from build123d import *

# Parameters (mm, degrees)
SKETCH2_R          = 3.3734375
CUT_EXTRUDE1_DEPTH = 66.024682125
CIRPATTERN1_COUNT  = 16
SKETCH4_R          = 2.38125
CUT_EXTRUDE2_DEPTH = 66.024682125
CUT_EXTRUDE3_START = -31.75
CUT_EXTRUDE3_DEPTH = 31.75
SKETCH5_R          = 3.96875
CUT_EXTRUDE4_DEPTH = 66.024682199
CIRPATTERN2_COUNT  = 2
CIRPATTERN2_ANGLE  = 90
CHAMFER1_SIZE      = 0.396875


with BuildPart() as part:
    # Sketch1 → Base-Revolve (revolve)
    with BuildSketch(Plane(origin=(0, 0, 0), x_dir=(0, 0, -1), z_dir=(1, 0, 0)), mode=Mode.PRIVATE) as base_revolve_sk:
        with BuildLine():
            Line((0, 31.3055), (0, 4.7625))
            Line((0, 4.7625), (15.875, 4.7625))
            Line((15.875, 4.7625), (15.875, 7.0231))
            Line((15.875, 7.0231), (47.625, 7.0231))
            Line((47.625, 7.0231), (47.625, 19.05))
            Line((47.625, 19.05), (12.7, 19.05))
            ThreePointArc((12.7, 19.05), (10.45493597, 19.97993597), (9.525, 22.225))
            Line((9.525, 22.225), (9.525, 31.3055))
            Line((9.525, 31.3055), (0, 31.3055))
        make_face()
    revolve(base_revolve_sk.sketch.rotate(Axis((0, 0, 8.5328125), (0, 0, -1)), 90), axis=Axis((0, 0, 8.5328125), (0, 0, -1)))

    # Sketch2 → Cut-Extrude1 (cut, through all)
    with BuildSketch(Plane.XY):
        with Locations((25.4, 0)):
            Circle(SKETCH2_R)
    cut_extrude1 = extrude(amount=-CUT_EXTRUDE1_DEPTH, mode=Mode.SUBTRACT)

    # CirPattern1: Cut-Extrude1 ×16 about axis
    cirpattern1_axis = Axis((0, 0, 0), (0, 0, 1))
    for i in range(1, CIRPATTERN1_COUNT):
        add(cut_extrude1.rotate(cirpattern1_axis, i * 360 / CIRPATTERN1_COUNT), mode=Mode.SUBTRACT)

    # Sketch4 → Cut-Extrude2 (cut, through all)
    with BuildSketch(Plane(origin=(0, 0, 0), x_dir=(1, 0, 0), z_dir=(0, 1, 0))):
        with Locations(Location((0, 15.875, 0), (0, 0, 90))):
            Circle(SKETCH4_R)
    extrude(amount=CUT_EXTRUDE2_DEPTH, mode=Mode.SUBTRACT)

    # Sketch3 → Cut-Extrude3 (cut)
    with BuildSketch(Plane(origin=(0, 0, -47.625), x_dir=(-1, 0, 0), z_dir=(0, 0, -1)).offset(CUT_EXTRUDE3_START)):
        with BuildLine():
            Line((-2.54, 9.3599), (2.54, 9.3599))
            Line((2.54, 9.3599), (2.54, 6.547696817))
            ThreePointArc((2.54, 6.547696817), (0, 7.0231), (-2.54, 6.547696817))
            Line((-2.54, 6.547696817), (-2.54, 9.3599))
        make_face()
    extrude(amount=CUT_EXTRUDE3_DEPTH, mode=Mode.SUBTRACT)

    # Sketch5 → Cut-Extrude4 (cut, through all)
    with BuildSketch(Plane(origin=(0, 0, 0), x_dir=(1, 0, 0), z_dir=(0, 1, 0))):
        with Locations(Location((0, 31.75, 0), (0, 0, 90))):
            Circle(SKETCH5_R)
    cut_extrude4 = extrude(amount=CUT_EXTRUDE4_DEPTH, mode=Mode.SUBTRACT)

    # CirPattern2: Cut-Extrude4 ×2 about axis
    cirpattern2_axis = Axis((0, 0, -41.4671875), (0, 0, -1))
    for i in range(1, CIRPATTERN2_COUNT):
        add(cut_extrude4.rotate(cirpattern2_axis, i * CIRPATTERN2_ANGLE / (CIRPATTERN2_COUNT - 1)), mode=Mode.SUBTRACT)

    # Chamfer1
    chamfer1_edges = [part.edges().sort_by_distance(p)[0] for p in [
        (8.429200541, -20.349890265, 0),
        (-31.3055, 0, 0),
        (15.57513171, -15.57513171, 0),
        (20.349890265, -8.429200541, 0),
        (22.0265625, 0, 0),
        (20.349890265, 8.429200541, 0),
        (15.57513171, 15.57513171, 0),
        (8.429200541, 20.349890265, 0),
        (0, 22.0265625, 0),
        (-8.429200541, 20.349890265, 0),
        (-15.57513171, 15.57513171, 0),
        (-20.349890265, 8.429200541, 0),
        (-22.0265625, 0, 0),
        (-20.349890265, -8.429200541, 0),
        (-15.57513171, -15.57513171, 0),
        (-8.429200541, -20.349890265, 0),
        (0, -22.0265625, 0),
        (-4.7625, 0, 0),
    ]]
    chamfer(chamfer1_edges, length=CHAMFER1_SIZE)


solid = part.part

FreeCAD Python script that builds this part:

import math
import FreeCAD as App
import Part
import Sketcher
Q = App.Units.Quantity


def edges_at(feature, points):
    """Names of the edges that pass closest to the given points."""
    edges = feature.Shape.Edges
    near = lambda p: min(range(len(edges)), key=lambda i: edges[i].distToShape(Part.Vertex(*p))[0])
    return sorted({f"Edge{near(p) + 1}" for p in points})

doc = App.newDocument("Part")
params = doc.addObject("Spreadsheet::Sheet", "Params")
for row, (alias, value) in enumerate([
    ("sketch1_radius", "0.125 in"),
    ("sketch1_height", "1.25 in"),
    ("sketch1_width", "1.045 in"),
    ("sketch1_width2", "0.089 in"),
    ("sketch1_height2", "0.625 in"),
    ("revolution_angle", "360 deg"),
    ("sketch2_diameter", "0.265625 in"),
    ("sketch3_diameter", "0.1875 in"),
    ("sketch4_width", "0.2 in"),
    ("pocket3_length", "1.25 in"),
    ("sketch5_diameter", "0.3125 in"),
    ("chamfer_size", "0.015625 in"),
], start=1):
    params.set(f"A{row}", alias)
    params.set(f"B{row}", "=" + value)
    params.setAlias(f"B{row}", alias)

body = doc.addObject("PartDesign::Body", "Body")

sketch1 = doc.addObject("Sketcher::SketchObject", "Sketch")
body.addObject(sketch1)
sketch1.AttachmentSupport = (doc.YZ_Plane, [""])
sketch1.MapMode = "FlatFace"
sketch1.addGeometry(Part.LineSegment(App.Vector(31.3, 0, 0), App.Vector(4.8, 0, 0)), False)
sketch1.addGeometry(Part.LineSegment(App.Vector(4.8, 0, 0), App.Vector(4.8, -15.9, 0)), False)
sketch1.addGeometry(Part.LineSegment(App.Vector(4.8, -15.9, 0), App.Vector(7, -15.9, 0)), False)
sketch1.addGeometry(Part.LineSegment(App.Vector(7, -15.9, 0), App.Vector(7, -47.6, 0)), False)
sketch1.addGeometry(Part.LineSegment(App.Vector(7, -47.6, 0), App.Vector(19.1, -47.6, 0)), False)
sketch1.addGeometry(Part.LineSegment(App.Vector(19.1, -47.6, 0), App.Vector(19.1, -12.7, 0)), False)
sketch1.addGeometry(Part.ArcOfCircle(Part.Circle(App.Vector(22.2, -12.7, 0), App.Vector(0, 0, 1), 3.2), math.radians(90), math.radians(180)), False)
sketch1.addGeometry(Part.LineSegment(App.Vector(22.2, -9.5, 0), App.Vector(31.3, -9.5, 0)), False)
sketch1.addGeometry(Part.LineSegment(App.Vector(31.3, -9.5, 0), App.Vector(31.3, 0, 0)), False)
sketch1.addConstraint(Sketcher.Constraint("Coincident", 0, 2, 1, 1))
sketch1.addConstraint(Sketcher.Constraint("Coincident", 1, 2, 2, 1))
sketch1.addConstraint(Sketcher.Constraint("Coincident", 2, 2, 3, 1))
sketch1.addConstraint(Sketcher.Constraint("Coincident", 3, 2, 4, 1))
sketch1.addConstraint(Sketcher.Constraint("Coincident", 4, 2, 5, 1))
sketch1.addConstraint(Sketcher.Constraint("Tangent", 5, 2, 6, 2))
sketch1.addConstraint(Sketcher.Constraint("Tangent", 6, 1, 7, 1))
sketch1.addConstraint(Sketcher.Constraint("Coincident", 7, 2, 8, 1))
sketch1.addConstraint(Sketcher.Constraint("Coincident", 8, 2, 0, 1))
sketch1.addConstraint(Sketcher.Constraint("Horizontal", 0))
sketch1.addConstraint(Sketcher.Constraint("Vertical", 1))
sketch1.addConstraint(Sketcher.Constraint("Horizontal", 2))
sketch1.addConstraint(Sketcher.Constraint("Vertical", 3))
sketch1.addConstraint(Sketcher.Constraint("Horizontal", 4))
sketch1.addConstraint(Sketcher.Constraint("Vertical", 5))
sketch1.addConstraint(Sketcher.Constraint("Horizontal", 7))
sketch1.addConstraint(Sketcher.Constraint("Vertical", 8))
sketch1.addConstraint(Sketcher.Constraint("PointOnObject", 0, 2, -1))
sketch1.addConstraint(Sketcher.Constraint("Radius", 6, Q("0.125 in")))
sketch1.addConstraint(Sketcher.Constraint("DistanceY", 3, 2, 3, 1, Q("1.25 in")))
sketch1.addConstraint(Sketcher.Constraint("DistanceY", 6, 3, -1, 1, Q("0.5 in")))
sketch1.addConstraint(Sketcher.Constraint("DistanceX", 0, 2, 0, 1, Q("1.045 in")))
sketch1.addConstraint(Sketcher.Constraint("DistanceX", 2, 1, 2, 2, Q("0.089 in")))
sketch1.addConstraint(Sketcher.Constraint("DistanceY", 1, 2, 1, 1, Q("0.625 in")))
sketch1.addConstraint(Sketcher.Constraint("DistanceX", -1, 1, 4, 2, Q("0.75 in")))
sketch1.addConstraint(Sketcher.Constraint("DistanceX", 4, 1, 4, 2, Q("0.4735 in")))
sketch1.setExpression("Constraints[18]", "Params.sketch1_radius")
sketch1.setExpression("Constraints[19]", "Params.sketch1_height")
sketch1.setExpression("Constraints[21]", "Params.sketch1_width")
sketch1.setExpression("Constraints[22]", "Params.sketch1_width2")
sketch1.setExpression("Constraints[23]", "Params.sketch1_height2")
revolution = doc.addObject("PartDesign::Revolution", "Revolution")
body.addObject(revolution)
revolution.Profile = sketch1
revolution.ReferenceAxis = (sketch1, ["V_Axis"])
revolution.setExpression("Angle", "Params.revolution_angle")

sketch2 = doc.addObject("Sketcher::SketchObject", "Sketch001")
body.addObject(sketch2)
sketch2.AttachmentSupport = (doc.XY_Plane, [""])
sketch2.MapMode = "FlatFace"
sketch2.addGeometry(Part.Circle(App.Vector(25.4, 0, 0), App.Vector(0, 0, 1), 3.4), False)
sketch2.addConstraint(Sketcher.Constraint("PointOnObject", 0, 3, -1))
sketch2.addConstraint(Sketcher.Constraint("Diameter", 0, Q("0.265625 in")))
sketch2.addConstraint(Sketcher.Constraint("DistanceX", -1, 1, 0, 3, Q("1 in")))
sketch2.setExpression("Constraints[1]", "Params.sketch2_diameter")
pocket1 = doc.addObject("PartDesign::Pocket", "Pocket")
body.addObject(pocket1)
pocket1.Profile = sketch2
pocket1.Type = "ThroughAll"
doc.recompute()

polarpattern = doc.addObject("PartDesign::PolarPattern", "PolarPattern")
body.addObject(polarpattern)
polarpattern.Originals = [pocket1]
polarpattern.Axis = (doc.Z_Axis, [""])
polarpattern.Angle = 360
polarpattern.Occurrences = 16
body.Tip = polarpattern

sketch3 = doc.addObject("Sketcher::SketchObject", "Sketch002")
body.addObject(sketch3)
sketch3.AttachmentSupport = (doc.XZ_Plane, [""])
sketch3.MapMode = "FlatFace"
sketch3.addGeometry(Part.Circle(App.Vector(0, -15.9, 0), App.Vector(0, 0, 1), 2.4), False)
sketch3.addConstraint(Sketcher.Constraint("PointOnObject", 0, 3, -2))
sketch3.addConstraint(Sketcher.Constraint("Diameter", 0, Q("0.1875 in")))
sketch3.addConstraint(Sketcher.Constraint("DistanceY", 0, 3, -1, 1, Q("0.625 in")))
sketch3.setExpression("Constraints[1]", "Params.sketch3_diameter")
pocket2 = doc.addObject("PartDesign::Pocket", "Pocket001")
body.addObject(pocket2)
pocket2.Profile = sketch3
pocket2.Type = "ThroughAll"

sketch4 = doc.addObject("Sketcher::SketchObject", "Sketch003")
body.addObject(sketch4)
sketch4.AttachmentSupport = (doc.XY_Plane, [""])
sketch4.MapMode = "FlatFace"
sketch4.AttachmentOffset = App.Placement(App.Vector(0, 0, -0.625 * 25.4), App.Rotation())
sketch4.addGeometry(Part.LineSegment(App.Vector(-2.5, 9.4, 0), App.Vector(2.5, 9.4, 0)), False)
sketch4.addGeometry(Part.LineSegment(App.Vector(2.5, 9.4, 0), App.Vector(2.5, 6.5, 0)), False)
sketch4.addGeometry(Part.ArcOfCircle(Part.Circle(App.Vector(0, 0, 0), App.Vector(0, 0, 1), 7), math.radians(69), math.radians(111)), False)
sketch4.addGeometry(Part.LineSegment(App.Vector(-2.5, 6.5, 0), App.Vector(-2.5, 9.4, 0)), False)
sketch4.addConstraint(Sketcher.Constraint("Coincident", 0, 2, 1, 1))
sketch4.addConstraint(Sketcher.Constraint("Coincident", 1, 2, 2, 1))
sketch4.addConstraint(Sketcher.Constraint("Coincident", 2, 2, 3, 1))
sketch4.addConstraint(Sketcher.Constraint("Coincident", 3, 2, 0, 1))
sketch4.addConstraint(Sketcher.Constraint("Horizontal", 0))
sketch4.addConstraint(Sketcher.Constraint("Vertical", 1))
sketch4.addConstraint(Sketcher.Constraint("Vertical", 3))
sketch4.addConstraint(Sketcher.Constraint("Coincident", 2, 3, -1, 1))
sketch4.addConstraint(Sketcher.Constraint("Horizontal", 1, 2, 2, 2))
sketch4.addConstraint(Sketcher.Constraint("DistanceX", 0, 1, 0, 2, Q("0.2 in")))
sketch4.addConstraint(Sketcher.Constraint("Radius", 2, Q("0.2765 in")))
sketch4.addConstraint(Sketcher.Constraint("DistanceY", -1, 1, 0, 2, Q("0.3685 in")))
sketch4.setExpression("Constraints[9]", "Params.sketch4_width")
pocket3 = doc.addObject("PartDesign::Pocket", "Pocket002")
body.addObject(pocket3)
pocket3.Profile = sketch4
pocket3.setExpression("Length", "Params.pocket3_length")

sketch5 = doc.addObject("Sketcher::SketchObject", "Sketch004")
body.addObject(sketch5)
sketch5.AttachmentSupport = (doc.XZ_Plane, [""])
sketch5.MapMode = "FlatFace"
sketch5.addGeometry(Part.Circle(App.Vector(0, -31.8, 0), App.Vector(0, 0, 1), 4), False)
sketch5.addConstraint(Sketcher.Constraint("PointOnObject", 0, 3, -2))
sketch5.addConstraint(Sketcher.Constraint("Diameter", 0, Q("0.3125 in")))
sketch5.addConstraint(Sketcher.Constraint("DistanceY", 0, 3, -1, 1, Q("1.25 in")))
sketch5.setExpression("Constraints[1]", "Params.sketch5_diameter")
pocket4 = doc.addObject("PartDesign::Pocket", "Pocket003")
body.addObject(pocket4)
pocket4.Profile = sketch5
pocket4.Type = "ThroughAll"
doc.recompute()

polarpattern2 = doc.addObject("PartDesign::PolarPattern", "PolarPattern001")
body.addObject(polarpattern2)
polarpattern2.Originals = [pocket4]
polarpattern2.Axis = (doc.Z_Axis, [""])
polarpattern2.Angle = 90
polarpattern2.Occurrences = 2
polarpattern2.Reversed = True
body.Tip = polarpattern2
doc.recompute()

chamfer = doc.addObject("PartDesign::Chamfer", "Chamfer")
body.addObject(chamfer)
chamfer.Base = (polarpattern2, edges_at(polarpattern2, [
    (8.429, -20.35, 0),
    (-31.305, 0, 0),
    (15.575, -15.575, 0),
    (20.35, -8.429, 0),
    (22.027, 0, 0),
    (20.35, 8.429, 0),
    (15.575, 15.575, 0),
    (8.429, 20.35, 0),
    (0, 22.027, 0),
    (-8.429, 20.35, 0),
    (-15.575, 15.575, 0),
    (-20.35, 8.429, 0),
    (-22.027, 0, 0),
    (-20.35, -8.429, 0),
    (-15.575, -15.575, 0),
    (-8.429, -20.35, 0),
    (0, -22.027, 0),
    (-4.763, 0, 0),
]))
chamfer.setExpression("Size", "Params.chamfer_size")

doc.recompute()
